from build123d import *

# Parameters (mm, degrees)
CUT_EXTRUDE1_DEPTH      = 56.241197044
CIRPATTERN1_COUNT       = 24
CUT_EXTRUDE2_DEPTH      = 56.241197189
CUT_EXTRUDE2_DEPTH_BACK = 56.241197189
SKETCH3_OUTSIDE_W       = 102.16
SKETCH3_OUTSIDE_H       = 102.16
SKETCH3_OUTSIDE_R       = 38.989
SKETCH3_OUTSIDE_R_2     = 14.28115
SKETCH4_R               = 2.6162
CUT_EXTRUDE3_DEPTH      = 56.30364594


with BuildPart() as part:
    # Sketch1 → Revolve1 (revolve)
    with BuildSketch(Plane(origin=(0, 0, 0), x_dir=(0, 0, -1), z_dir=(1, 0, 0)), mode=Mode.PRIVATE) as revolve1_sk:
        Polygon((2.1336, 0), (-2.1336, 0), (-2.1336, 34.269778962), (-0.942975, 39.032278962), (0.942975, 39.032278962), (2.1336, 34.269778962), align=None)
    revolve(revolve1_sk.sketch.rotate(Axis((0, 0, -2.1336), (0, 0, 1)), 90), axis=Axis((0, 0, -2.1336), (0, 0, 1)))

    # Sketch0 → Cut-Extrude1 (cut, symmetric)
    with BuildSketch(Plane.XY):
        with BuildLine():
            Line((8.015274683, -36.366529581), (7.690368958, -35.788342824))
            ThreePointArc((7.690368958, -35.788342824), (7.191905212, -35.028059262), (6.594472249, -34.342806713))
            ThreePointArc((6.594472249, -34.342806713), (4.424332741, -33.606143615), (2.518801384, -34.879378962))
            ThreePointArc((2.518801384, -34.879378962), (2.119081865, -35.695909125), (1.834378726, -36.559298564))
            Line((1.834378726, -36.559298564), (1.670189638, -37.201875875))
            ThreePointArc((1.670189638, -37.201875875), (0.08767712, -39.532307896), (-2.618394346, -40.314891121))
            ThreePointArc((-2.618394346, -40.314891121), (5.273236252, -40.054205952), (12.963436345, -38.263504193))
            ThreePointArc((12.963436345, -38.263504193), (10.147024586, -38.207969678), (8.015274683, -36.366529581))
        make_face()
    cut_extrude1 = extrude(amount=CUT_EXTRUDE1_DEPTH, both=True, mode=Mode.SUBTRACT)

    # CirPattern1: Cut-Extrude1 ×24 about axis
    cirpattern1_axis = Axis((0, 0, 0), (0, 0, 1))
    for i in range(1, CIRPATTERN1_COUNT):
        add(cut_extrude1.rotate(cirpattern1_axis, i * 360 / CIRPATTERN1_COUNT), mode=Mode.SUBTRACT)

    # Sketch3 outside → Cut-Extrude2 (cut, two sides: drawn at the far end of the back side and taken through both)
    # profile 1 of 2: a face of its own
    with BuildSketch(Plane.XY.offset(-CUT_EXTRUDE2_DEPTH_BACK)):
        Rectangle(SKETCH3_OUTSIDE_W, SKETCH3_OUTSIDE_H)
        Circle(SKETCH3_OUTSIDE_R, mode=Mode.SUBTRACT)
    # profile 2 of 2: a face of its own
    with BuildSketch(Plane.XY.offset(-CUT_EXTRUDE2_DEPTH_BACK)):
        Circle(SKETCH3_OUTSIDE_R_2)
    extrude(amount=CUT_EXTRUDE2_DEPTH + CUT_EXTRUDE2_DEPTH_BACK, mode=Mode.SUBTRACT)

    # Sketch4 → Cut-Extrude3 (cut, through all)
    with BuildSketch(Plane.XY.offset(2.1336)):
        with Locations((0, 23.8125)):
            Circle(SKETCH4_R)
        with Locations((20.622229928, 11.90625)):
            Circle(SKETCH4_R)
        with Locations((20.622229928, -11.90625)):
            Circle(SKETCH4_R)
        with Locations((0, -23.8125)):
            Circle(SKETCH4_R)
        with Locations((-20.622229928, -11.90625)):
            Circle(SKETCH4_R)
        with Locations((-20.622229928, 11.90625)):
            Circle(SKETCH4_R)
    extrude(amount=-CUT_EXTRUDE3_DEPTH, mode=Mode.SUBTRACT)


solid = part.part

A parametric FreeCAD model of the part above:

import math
import FreeCAD as App
import Part
import Sketcher

V = App.Vector
Q = App.Units.Quantity


def add_polygon(sketch, points):
    """Adds a closed chain of lines whose ends are joined by coincident constraints."""
    first, n = sketch.GeometryCount, len(points)
    for a, b in zip(points, points[1:] + points[:1]):
        sketch.addGeometry(Part.LineSegment(App.Vector(*a, 0), App.Vector(*b, 0)), False)
    for i in range(n):
        sketch.addConstraint(Sketcher.Constraint("Coincident", first + i, 2, first + (i + 1) % n, 1))

doc = App.newDocument("Part")
body = doc.addObject("PartDesign::Body", "Body")

sketch1 = doc.addObject("Sketcher::SketchObject", "Sketch")
body.addObject(sketch1)
sketch1.AttachmentSupport = (doc.YZ_Plane, [""])
sketch1.MapMode = "FlatFace"
add_polygon(sketch1, [(0, 2.1), (0, -2.1), (34.3, -2.1), (39, -0.9), (39, 0.9), (34.3, 2.1)])
sketch1.addConstraint([
    Sketcher.Constraint("Vertical", 0),
    Sketcher.Constraint("Horizontal", 1),
    Sketcher.Constraint("Vertical", 3),
    Sketcher.Constraint("Horizontal", 5),
    Sketcher.Constraint("Symmetric", 0, 2, 5, 2, -1, 1),
    Sketcher.Constraint("Vertical", 1, 2, 4, 2),
    Sketcher.Constraint("Equal", 2, 4),
    Sketcher.Constraint("DistanceY", 0, 2, 0, 1, Q("0.168 in")),
    Sketcher.Constraint("DistanceX", 1, 2, 2, 2, Q("0.1875 in")),
    Sketcher.Constraint("DistanceY", 1, 2, 2, 2, Q("0.046875 in")),
    Sketcher.Constraint("DistanceX", 1, 1, 1, 2, Q("34.269779 mm")),
])
revolution = doc.addObject("PartDesign::Revolution", "Revolution")
body.addObject(revolution)
revolution.Profile = sketch1
revolution.ReferenceAxis = (sketch1, ["V_Axis"])
revolution.Angle = 360

sketch2 = doc.addObject("Sketcher::SketchObject", "Sketch001")
body.addObject(sketch2)
sketch2.AttachmentSupport = (doc.XY_Plane, [""])
sketch2.MapMode = "FlatFace"
sketch2.addGeometry([
    Part.LineSegment(V(8, -36.4, 0), V(7.7, -35.8, 0)),
    Part.ArcOfCircle(Part.Circle(V(1.9, -39, 0), V(0, 0, 1), 6.7), math.radians(29.33), math.radians(45)),
    Part.ArcOfCircle(Part.Circle(V(4.8, -36.2, 0), V(0, 0, 1), 2.6), math.radians(45), math.radians(150)),
    Part.ArcOfCircle(Part.Circle(V(8.3, -38.2, 0), V(0, 0, 1), 6.7), math.radians(150), math.radians(165.67)),
    Part.LineSegment(V(1.8, -36.6, 0), V(1.7, -37.2, 0)),
    Part.ArcOfCircle(Part.Circle(V(-2.3, -36.2, 0), V(0, 0, 1), 4.1), math.radians(-94), math.radians(-14)),
    Part.ArcOfCircle(Part.Circle(V(0, 0, 0), V(0, 0, 1), 40.4), math.radians(-94), math.radians(-71)),
    Part.ArcOfCircle(Part.Circle(V(11.6, -34.3, 0), V(0, 0, 1), 4.1), math.radians(-151), math.radians(-71)),
], False)
sketch2.addConstraint([
    Sketcher.Constraint("Tangent", 0, 2, 1, 1),
    Sketcher.Constraint("Tangent", 1, 2, 2, 1),
    Sketcher.Constraint("Tangent", 2, 2, 3, 1),
    Sketcher.Constraint("Tangent", 3, 2, 4, 1),
    Sketcher.Constraint("Tangent", 4, 2, 5, 2),
    Sketcher.Constraint("Tangent", 5, 1, 6, 1),
    Sketcher.Constraint("Tangent", 6, 2, 7, 2),
    Sketcher.Constraint("Tangent", 7, 1, 0, 1),
    Sketcher.Constraint("Coincident", 6, 3, -1, 1),
    Sketcher.Constraint("Equal", 1, 3),
    Sketcher.Constraint("Equal", 5, 7),
    Sketcher.Constraint("Horizontal", 2, 3, 5, 3),
    Sketcher.Constraint("Equal", 0, 4),
    Sketcher.Constraint("Radius", 1, Q("0.262 in")),
    Sketcher.Constraint("Radius", 2, Q("0.102 in")),
    Sketcher.Constraint("DistanceY", 3, 3, 2, 3, Q("0.08 in")),
    Sketcher.Constraint("DistanceX", 5, 3, 2, 3, Q("0.28 in")),
    Sketcher.Constraint("DistanceX", -1, 1, 2, 3, Q("0.1875 in")),
    Sketcher.Constraint("Radius", 5, Q("4.148835 mm")),
    Sketcher.Constraint("Radius", 6, Q("40.399832 mm")),
    Sketcher.Constraint("DistanceY", 1, 3, 4, 2, Q("0.0727002 in")),
])
pocket1 = doc.addObject("PartDesign::Pocket", "Pocket")
body.addObject(pocket1)
pocket1.Profile = sketch2
pocket1.Length = 112.482394
pocket1.Midplane = True
doc.recompute()

polarpattern = doc.addObject("PartDesign::PolarPattern", "PolarPattern")
body.addObject(polarpattern)
polarpattern.Originals = [pocket1]
polarpattern.Axis = (doc.Z_Axis, [""])
polarpattern.Angle = 360
polarpattern.Occurrences = 24
body.Tip = polarpattern

sketch3 = doc.addObject("Sketcher::SketchObject", "Sketch002")
body.addObject(sketch3)
sketch3.AttachmentSupport = (doc.XY_Plane, [""])
sketch3.MapMode = "FlatFace"
add_polygon(sketch3, [(-51, 51), (-51, -51), (51, -51), (51, 51)])
sketch3.addGeometry(Part.Circle(V(0, 0, 0), V(0, 0, 1), 39), False)
sketch3.addGeometry(Part.Circle(V(0, 0, 0), V(0, 0, 1), 14), False)
sketch3.addConstraint([
    Sketcher.Constraint("Vertical", 0),
    Sketcher.Constraint("Horizontal", 1),
    Sketcher.Constraint("Vertical", 2),
    Sketcher.Constraint("Horizontal", 3),
    Sketcher.Constraint("Coincident", 4, 3, -1, 1),
    Sketcher.Constraint("Coincident", 5, 3, -1, 1),
    Sketcher.Constraint("Symmetric", 0, 2, 2, 2, -1, 1),
    Sketcher.Constraint("Equal", 3, 0),
    Sketcher.Constraint("Diameter", 4, Q("3.07 in")),
    Sketcher.Constraint("Diameter", 5, Q("1.1245 in")),
    Sketcher.Constraint("DistanceX", 1, 1, 1, 2, Q("102.16 mm")),
])
pocket2 = doc.addObject("PartDesign::Pocket", "Pocket001")
body.addObject(pocket2)
pocket2.Profile = sketch3
pocket2.Type = "ThroughAll"
pocket2.Midplane = True

sketch4 = doc.addObject("Sketcher::SketchObject", "Sketch003")
body.addObject(sketch4)
sketch4.AttachmentSupport = (doc.XY_Plane, [""])
sketch4.MapMode = "FlatFace"
sketch4.AttachmentOffset = App.Placement(V(0, 0, 0.084 * 25.4), App.Rotation())
sketch4.addGeometry([
    Part.Circle(V(0, 23.8, 0), V(0, 0, 1), 2.6),
    Part.Circle(V(20.6, 11.9, 0), V(0, 0, 1), 2.6),
    Part.Circle(V(20.6, -11.9, 0), V(0, 0, 1), 2.6),
    Part.Circle(V(0, -23.8, 0), V(0, 0, 1), 2.6),
    Part.Circle(V(-20.6, -11.9, 0), V(0, 0, 1), 2.6),
    Part.Circle(V(-20.6, 11.9, 0), V(0, 0, 1), 2.6),
], False)
sketch4.addConstraint([
    Sketcher.Constraint("Equal", 0, 1),
    Sketcher.Constraint("Equal", 1, 2),
    Sketcher.Constraint("Equal", 2, 3),
    Sketcher.Constraint("Equal", 3, 4),
    Sketcher.Constraint("Equal", 4, 5),
    Sketcher.Constraint("Symmetric", 0, 3, 3, 3, -1, 1),
    Sketcher.Constraint("Symmetric", 1, 3, 4, 3, -1, 1),
    Sketcher.Constraint("Symmetric", 2, 3, 5, 3, -1, 1),
    Sketcher.Constraint("Symmetric", 2, 3, 4, 3, -2),
    Sketcher.Constraint("PointOnObject", 0, 3, -2),
    Sketcher.Constraint("Diameter", 0, Q("0.206 in")),
    Sketcher.Constraint("DistanceY", -1, 1, 0, 3, Q("0.9375 in")),
    Sketcher.Constraint("DistanceY", -1, 1, 1, 3, Q("0.46875 in")),
    Sketcher.Constraint("DistanceX", -1, 1, 1, 3, Q("20.62223 mm")),
])
pocket3 = doc.addObject("PartDesign::Pocket", "Pocket002")
body.addObject(pocket3)
pocket3.Profile = sketch4
pocket3.Type = "ThroughAll"

doc.recompute()
